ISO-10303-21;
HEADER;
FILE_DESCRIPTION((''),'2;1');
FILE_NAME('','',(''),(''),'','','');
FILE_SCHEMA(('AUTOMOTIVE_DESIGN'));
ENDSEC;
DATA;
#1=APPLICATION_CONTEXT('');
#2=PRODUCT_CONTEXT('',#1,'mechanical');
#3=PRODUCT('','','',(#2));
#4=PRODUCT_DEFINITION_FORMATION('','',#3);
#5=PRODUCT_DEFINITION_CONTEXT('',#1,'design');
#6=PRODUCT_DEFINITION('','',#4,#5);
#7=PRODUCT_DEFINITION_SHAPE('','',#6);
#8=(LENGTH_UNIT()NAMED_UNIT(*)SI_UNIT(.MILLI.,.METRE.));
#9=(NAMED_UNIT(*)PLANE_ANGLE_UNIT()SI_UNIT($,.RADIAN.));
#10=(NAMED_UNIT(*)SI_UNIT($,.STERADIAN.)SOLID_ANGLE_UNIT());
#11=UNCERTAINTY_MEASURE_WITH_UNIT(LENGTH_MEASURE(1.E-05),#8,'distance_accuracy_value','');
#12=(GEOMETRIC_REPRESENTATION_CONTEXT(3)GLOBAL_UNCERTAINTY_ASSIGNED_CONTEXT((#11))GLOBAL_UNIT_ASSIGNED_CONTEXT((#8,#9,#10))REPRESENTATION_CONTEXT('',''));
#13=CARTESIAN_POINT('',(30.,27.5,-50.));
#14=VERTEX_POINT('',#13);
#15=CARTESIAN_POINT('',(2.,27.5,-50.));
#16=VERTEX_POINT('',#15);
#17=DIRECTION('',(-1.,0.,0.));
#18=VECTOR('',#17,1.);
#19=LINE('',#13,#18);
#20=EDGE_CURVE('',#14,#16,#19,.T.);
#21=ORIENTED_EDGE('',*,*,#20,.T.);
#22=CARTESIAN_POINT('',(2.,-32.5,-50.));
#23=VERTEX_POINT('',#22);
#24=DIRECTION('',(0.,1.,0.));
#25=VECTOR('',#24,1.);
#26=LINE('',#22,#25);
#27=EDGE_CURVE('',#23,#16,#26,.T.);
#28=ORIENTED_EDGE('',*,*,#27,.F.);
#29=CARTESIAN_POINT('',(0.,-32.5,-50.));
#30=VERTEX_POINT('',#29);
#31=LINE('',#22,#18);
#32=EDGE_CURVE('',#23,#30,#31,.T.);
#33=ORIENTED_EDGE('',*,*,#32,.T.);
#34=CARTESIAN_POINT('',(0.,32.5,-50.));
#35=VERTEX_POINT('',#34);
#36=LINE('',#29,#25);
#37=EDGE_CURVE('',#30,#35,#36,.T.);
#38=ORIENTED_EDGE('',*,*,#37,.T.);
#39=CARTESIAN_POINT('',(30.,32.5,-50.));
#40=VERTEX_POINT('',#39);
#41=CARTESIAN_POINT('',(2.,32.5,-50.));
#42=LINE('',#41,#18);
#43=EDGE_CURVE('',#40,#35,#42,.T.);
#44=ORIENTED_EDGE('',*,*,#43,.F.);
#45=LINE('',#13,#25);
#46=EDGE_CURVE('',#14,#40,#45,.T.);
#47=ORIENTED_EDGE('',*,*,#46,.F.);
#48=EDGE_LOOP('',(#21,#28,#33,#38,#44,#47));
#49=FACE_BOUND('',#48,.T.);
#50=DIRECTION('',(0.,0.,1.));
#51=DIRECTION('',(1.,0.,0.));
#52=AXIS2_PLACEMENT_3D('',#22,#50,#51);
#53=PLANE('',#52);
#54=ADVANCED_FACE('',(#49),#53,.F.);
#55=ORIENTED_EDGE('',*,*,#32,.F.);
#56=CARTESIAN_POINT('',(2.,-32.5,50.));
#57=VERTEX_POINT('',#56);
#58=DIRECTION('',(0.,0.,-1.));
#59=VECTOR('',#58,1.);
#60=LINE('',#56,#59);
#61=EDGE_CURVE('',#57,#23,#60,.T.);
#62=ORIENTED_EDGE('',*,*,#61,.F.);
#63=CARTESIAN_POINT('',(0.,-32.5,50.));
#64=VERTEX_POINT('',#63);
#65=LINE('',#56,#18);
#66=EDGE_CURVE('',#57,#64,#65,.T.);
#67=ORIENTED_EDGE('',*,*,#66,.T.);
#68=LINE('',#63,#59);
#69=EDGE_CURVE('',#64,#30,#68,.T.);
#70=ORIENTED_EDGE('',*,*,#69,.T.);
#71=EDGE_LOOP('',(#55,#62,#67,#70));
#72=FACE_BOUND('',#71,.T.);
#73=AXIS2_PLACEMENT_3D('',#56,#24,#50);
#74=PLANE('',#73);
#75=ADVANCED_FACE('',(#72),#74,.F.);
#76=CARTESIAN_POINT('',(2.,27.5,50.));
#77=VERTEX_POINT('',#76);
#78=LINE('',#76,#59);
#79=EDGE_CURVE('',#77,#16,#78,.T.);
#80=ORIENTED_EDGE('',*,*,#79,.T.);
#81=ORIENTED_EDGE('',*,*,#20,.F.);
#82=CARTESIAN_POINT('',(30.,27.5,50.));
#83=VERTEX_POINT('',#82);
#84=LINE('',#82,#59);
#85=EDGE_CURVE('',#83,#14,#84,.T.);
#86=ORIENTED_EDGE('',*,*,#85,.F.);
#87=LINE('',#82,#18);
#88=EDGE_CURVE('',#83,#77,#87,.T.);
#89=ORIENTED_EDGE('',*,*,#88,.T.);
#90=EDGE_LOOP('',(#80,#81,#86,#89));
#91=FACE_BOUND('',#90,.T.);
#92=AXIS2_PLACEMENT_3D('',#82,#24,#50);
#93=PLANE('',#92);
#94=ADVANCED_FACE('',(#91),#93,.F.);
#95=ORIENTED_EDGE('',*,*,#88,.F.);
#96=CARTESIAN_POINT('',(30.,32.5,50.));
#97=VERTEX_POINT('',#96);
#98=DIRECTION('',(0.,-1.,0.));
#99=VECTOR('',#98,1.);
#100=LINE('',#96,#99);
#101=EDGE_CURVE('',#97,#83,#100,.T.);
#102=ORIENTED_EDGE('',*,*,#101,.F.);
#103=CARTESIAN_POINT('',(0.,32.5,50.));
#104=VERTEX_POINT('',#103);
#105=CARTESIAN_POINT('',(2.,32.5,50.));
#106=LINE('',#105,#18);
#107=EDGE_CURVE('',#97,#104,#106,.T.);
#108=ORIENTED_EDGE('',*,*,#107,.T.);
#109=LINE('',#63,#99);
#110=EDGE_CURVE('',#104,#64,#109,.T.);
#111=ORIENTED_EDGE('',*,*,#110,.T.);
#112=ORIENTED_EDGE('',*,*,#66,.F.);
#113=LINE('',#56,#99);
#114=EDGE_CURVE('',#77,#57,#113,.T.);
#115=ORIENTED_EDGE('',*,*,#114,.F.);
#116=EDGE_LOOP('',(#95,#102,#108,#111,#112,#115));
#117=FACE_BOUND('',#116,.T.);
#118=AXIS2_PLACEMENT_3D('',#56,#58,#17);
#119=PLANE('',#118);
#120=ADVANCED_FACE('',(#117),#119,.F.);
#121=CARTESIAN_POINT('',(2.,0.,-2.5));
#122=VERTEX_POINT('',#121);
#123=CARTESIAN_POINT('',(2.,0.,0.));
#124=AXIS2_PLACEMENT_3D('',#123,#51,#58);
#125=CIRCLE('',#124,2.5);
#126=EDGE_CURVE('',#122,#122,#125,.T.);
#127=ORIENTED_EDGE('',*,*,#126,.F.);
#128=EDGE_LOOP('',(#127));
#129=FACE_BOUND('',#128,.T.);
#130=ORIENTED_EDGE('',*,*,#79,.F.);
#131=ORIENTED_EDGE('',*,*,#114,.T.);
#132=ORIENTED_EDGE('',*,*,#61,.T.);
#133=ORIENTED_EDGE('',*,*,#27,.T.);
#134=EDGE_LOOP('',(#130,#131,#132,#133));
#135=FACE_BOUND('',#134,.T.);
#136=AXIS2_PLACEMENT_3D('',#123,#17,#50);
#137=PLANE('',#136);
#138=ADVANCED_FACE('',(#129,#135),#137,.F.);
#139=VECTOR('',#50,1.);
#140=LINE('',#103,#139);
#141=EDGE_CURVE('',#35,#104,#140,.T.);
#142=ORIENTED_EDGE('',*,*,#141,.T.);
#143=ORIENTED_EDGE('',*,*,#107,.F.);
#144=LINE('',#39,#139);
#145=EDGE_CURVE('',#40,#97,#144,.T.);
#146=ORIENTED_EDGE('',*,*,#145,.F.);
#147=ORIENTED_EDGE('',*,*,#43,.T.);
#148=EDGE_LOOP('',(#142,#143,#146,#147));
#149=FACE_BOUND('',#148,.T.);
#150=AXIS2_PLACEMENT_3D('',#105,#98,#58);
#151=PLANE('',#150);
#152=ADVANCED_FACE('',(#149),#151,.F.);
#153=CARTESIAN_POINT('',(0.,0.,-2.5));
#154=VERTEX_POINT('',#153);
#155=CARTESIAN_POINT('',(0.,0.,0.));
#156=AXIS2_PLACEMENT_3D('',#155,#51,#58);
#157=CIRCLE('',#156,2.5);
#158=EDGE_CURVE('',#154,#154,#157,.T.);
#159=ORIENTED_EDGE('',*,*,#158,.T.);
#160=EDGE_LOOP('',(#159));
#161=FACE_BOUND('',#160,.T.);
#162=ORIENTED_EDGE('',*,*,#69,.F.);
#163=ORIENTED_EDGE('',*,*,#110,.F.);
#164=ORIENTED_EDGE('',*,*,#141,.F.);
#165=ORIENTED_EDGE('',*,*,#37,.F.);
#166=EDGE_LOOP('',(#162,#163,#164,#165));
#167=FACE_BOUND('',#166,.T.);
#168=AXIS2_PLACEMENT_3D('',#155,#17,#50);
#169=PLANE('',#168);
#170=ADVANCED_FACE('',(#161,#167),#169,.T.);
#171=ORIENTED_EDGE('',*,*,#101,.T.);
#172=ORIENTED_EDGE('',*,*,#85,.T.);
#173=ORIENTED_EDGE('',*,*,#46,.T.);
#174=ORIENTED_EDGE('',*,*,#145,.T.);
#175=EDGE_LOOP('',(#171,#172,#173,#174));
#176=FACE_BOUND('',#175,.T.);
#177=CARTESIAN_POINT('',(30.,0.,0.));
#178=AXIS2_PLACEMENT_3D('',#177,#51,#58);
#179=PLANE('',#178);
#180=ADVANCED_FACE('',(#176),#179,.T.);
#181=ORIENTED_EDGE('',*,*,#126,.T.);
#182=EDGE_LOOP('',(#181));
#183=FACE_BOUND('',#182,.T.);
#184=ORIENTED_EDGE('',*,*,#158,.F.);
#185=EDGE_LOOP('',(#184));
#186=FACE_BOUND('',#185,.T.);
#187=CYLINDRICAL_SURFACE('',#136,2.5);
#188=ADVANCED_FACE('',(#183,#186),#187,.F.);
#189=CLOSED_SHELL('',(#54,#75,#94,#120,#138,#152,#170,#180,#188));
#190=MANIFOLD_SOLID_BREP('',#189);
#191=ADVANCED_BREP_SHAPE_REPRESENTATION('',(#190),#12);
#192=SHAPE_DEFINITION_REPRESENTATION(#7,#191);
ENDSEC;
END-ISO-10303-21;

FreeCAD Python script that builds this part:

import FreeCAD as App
import Part
import Sketcher

V = App.Vector

doc = App.newDocument("Part")
body = doc.addObject("PartDesign::Body", "Body")

sketch1 = doc.addObject("Sketcher::SketchObject", "Sketch")
body.addObject(sketch1)
sketch1.AttachmentSupport = (doc.YZ_Plane, [""])
sketch1.MapMode = "FlatFace"
sketch1.addGeometry([
    Part.LineSegment(V(32.5, 50, 0), V(-32.5, 50, 0)),
    Part.LineSegment(V(-32.5, 50, 0), V(-32.5, -50, 0)),
    Part.LineSegment(V(-32.5, -50, 0), V(32.5, -50, 0)),
    Part.LineSegment(V(32.5, -50, 0), V(32.5, 50, 0)),
    Part.Circle(V(0, 0, 0), V(0, 0, 1), 2.5),
], False)
sketch1.addConstraint([
    Sketcher.Constraint("Coincident", 0, 2, 1, 1),
    Sketcher.Constraint("Coincident", 1, 2, 2, 1),
    Sketcher.Constraint("Coincident", 2, 2, 3, 1),
    Sketcher.Constraint("Coincident", 3, 2, 0, 1),
    Sketcher.Constraint("Horizontal", 0),
    Sketcher.Constraint("Vertical", 1),
    Sketcher.Constraint("Horizontal", 2),
    Sketcher.Constraint("Vertical", 3),
    Sketcher.Constraint("Coincident", 4, 3, -1, 1),
    Sketcher.Constraint("Symmetric", 0, 2, 2, 2, -1, 1),
    Sketcher.Constraint("Diameter", 4, 5.0),
    Sketcher.Constraint("DistanceX", 0, 2, 0, 1, 65.0),
    Sketcher.Constraint("DistanceY", 1, 2, 1, 1, 100.0),
])
pad1 = doc.addObject("PartDesign::Pad", "Pad")
body.addObject(pad1)
pad1.Profile = sketch1
pad1.Length = 2

sketch2 = doc.addObject("Sketcher::SketchObject", "Sketch001")
body.addObject(sketch2)
sketch2.AttachmentSupport = (doc.YZ_Plane, [""])
sketch2.MapMode = "FlatFace"
sketch2.AttachmentOffset = App.Placement(V(0, 0, 2), App.Rotation())
sketch2.addGeometry([
    Part.LineSegment(V(32, 50, 0), V(28, 50, 0)),
    Part.LineSegment(V(28, 50, 0), V(28, -50, 0)),
    Part.LineSegment(V(28, -50, 0), V(32, -50, 0)),
    Part.LineSegment(V(32, -50, 0), V(32, 50, 0)),
], False)
sketch2.addConstraint([
    Sketcher.Constraint("Coincident", 0, 2, 1, 1),
    Sketcher.Constraint("Coincident", 1, 2, 2, 1),
    Sketcher.Constraint("Coincident", 2, 2, 3, 1),
    Sketcher.Constraint("Coincident", 3, 2, 0, 1),
    Sketcher.Constraint("Horizontal", 0),
    Sketcher.Constraint("Vertical", 1),
    Sketcher.Constraint("Horizontal", 2),
    Sketcher.Constraint("Vertical", 3),
    Sketcher.Constraint("DistanceX", 0, 2, 0, 1, 5.0),
    Sketcher.Constraint("DistanceY", 1, 2, 1, 1, 100.0),
    Sketcher.Constraint("DistanceY", -1, 1, 0, 2, 50.0),
    Sketcher.Constraint("DistanceX", -1, 1, 0, 2, 27.5),
])
pad2 = doc.addObject("PartDesign::Pad", "Pad001")
body.addObject(pad2)
pad2.Profile = sketch2
pad2.Length = 28

doc.recompute()
